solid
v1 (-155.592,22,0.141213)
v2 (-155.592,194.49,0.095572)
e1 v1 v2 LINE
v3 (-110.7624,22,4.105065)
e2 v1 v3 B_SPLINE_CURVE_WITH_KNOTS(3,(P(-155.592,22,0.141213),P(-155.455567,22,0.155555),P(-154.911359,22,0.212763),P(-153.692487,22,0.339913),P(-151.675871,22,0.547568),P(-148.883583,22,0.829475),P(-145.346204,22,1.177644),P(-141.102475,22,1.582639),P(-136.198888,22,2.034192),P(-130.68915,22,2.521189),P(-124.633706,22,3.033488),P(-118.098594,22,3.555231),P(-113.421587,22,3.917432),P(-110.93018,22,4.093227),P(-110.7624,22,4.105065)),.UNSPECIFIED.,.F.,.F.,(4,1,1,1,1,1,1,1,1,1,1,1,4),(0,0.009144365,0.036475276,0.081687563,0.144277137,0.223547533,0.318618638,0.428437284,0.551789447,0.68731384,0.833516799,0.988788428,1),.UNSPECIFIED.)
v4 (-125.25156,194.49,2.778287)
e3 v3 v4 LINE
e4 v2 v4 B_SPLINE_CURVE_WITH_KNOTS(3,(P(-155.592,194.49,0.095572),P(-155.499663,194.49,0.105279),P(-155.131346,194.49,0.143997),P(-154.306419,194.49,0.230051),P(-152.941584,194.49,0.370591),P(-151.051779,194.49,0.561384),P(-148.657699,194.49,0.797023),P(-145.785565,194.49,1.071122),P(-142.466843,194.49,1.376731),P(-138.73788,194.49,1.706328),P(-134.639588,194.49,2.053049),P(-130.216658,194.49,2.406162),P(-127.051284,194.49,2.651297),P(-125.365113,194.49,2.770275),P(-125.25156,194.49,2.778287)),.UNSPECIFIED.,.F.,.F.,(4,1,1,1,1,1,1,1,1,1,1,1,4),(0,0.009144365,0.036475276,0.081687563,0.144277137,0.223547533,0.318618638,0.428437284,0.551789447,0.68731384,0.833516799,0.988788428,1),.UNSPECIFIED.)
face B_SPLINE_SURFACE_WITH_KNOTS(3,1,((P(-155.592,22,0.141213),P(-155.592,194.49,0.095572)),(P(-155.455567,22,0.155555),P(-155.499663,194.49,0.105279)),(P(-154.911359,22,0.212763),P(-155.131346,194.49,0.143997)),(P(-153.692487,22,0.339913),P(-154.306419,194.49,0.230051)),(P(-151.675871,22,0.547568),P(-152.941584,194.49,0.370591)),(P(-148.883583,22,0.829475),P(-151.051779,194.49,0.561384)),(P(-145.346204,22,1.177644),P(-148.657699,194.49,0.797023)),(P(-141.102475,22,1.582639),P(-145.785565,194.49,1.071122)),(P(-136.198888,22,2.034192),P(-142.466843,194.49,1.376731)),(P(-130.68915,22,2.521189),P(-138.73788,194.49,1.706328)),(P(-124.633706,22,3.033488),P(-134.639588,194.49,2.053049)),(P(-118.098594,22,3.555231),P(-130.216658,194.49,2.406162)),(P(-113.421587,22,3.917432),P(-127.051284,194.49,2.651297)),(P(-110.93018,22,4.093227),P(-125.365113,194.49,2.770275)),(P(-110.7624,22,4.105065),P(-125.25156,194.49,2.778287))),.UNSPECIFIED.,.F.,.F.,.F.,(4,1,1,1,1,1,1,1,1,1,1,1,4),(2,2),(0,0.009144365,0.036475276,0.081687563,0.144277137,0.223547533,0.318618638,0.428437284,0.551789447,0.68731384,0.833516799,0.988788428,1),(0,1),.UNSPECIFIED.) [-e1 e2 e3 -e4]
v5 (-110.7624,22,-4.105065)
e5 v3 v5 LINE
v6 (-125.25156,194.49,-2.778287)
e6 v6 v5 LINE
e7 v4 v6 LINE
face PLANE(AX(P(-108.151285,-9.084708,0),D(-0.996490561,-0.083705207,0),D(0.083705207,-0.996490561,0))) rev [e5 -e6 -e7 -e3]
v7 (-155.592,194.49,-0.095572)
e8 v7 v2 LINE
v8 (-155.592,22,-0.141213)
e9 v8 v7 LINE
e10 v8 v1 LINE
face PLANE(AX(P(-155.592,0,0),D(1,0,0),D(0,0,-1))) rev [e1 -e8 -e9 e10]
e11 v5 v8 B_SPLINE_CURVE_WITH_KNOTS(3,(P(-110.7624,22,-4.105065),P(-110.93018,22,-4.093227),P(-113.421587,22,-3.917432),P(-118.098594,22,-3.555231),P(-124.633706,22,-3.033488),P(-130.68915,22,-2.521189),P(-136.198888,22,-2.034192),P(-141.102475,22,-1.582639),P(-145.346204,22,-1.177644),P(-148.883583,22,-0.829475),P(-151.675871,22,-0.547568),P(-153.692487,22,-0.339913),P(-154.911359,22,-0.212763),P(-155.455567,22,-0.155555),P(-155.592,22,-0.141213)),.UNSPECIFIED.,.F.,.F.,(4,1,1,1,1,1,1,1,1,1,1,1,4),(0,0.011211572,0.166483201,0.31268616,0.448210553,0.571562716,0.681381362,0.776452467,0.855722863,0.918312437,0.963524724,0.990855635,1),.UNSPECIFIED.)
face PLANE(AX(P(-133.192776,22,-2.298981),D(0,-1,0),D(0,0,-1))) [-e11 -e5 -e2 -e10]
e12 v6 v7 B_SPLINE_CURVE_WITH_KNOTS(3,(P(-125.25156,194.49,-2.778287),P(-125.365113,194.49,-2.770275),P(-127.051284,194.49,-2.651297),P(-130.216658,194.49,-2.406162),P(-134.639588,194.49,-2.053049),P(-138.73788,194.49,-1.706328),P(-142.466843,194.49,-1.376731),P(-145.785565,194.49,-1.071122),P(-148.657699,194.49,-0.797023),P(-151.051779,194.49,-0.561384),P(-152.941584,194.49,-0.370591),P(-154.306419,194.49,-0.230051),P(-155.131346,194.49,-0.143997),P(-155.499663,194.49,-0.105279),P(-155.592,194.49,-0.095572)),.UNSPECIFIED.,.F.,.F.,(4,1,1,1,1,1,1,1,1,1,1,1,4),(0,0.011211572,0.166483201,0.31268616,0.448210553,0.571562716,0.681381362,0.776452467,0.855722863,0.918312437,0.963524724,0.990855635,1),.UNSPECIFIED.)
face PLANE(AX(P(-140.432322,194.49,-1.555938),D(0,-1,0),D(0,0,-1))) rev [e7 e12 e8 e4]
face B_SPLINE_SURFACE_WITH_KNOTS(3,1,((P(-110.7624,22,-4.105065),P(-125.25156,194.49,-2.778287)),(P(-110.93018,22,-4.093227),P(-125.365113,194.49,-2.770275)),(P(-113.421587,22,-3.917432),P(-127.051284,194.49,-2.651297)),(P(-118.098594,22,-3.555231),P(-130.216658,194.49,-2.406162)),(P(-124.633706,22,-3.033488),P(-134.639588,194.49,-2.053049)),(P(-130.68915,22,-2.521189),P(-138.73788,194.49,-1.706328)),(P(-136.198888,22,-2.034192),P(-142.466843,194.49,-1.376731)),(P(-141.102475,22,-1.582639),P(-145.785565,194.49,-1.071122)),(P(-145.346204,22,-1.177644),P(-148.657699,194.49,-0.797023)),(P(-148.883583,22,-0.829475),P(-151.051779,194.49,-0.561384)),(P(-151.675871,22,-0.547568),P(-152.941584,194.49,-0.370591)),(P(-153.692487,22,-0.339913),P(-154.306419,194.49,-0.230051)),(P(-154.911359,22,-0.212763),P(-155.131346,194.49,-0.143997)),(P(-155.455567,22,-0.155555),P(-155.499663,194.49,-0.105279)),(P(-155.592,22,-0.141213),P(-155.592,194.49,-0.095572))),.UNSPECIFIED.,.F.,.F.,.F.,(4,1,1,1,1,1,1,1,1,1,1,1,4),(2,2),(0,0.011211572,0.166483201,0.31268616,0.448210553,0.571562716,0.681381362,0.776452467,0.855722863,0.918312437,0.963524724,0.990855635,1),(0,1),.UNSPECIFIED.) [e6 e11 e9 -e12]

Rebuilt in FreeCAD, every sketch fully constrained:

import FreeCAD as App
import Part
import Sketcher

V = App.Vector

doc = App.newDocument("Part")
body = doc.addObject("PartDesign::Body", "Body")

sketch1 = doc.addObject("Sketcher::SketchObject", "Sketch")
body.addObject(sketch1)
sketch1.AttachmentSupport = (doc.XZ_Plane, [""])
sketch1.MapMode = "FlatFace"
sketch1.AttachmentOffset = App.Placement(V(0, 0, -22), App.Rotation())
sketch1.addGeometry(Part.LineSegment(V(-110.7624, 4.105065, 0), V(-110.7624, -4.105065, 0)), False)
sketch1.addGeometry(Part.BSplineCurve([V(-110.7624, -4.105065, 0), V(-110.93018, -4.093227, 0), V(-113.421587, -3.917432, 0), V(-118.098594, -3.555231, 0), V(-124.633706, -3.033488, 0), V(-130.68915, -2.521189, 0), V(-136.198888, -2.034192, 0), V(-141.102475, -1.582639, 0), V(-145.346204, -1.177644, 0), V(-148.883583, -0.829475, 0), V(-151.675871, -0.547568, 0), V(-153.692487, -0.339913, 0), V(-154.911359, -0.212763, 0), V(-155.455567, -0.155555, 0), V(-155.592, -0.141213, 0)], [4, 1, 1, 1, 1, 1, 1, 1, 1, 1, 1, 1, 4], [0, 0.011211572, 0.166483201, 0.31268616, 0.448210553, 0.571562716, 0.681381362, 0.776452467, 0.855722863, 0.918312437, 0.963524724, 0.990855635, 1], False, 3, [1, 1, 1, 1, 1, 1, 1, 1, 1, 1, 1, 1, 1, 1, 1], False), False)
sketch1.addGeometry(Part.LineSegment(V(-155.592, -0.141213, 0), V(-155.592, 0.141213, 0)), False)
sketch1.addGeometry(Part.BSplineCurve([V(-110.7624, 4.105065, 0), V(-110.93018, 4.093227, 0), V(-113.421587, 3.917432, 0), V(-118.098594, 3.555231, 0), V(-124.633706, 3.033488, 0), V(-130.68915, 2.521189, 0), V(-136.198888, 2.034192, 0), V(-141.102475, 1.582639, 0), V(-145.346204, 1.177644, 0), V(-148.883583, 0.829475, 0), V(-151.675871, 0.547568, 0), V(-153.692487, 0.339913, 0), V(-154.911359, 0.212763, 0), V(-155.455567, 0.155555, 0), V(-155.592, 0.141213, 0)], [4, 1, 1, 1, 1, 1, 1, 1, 1, 1, 1, 1, 4], [0, 0.011211572, 0.166483201, 0.31268616, 0.448210553, 0.571562716, 0.681381362, 0.776452467, 0.855722863, 0.918312437, 0.963524724, 0.990855635, 1], False, 3, [1, 1, 1, 1, 1, 1, 1, 1, 1, 1, 1, 1, 1, 1, 1], False), False)
sketch1.addConstraint(Sketcher.Constraint("Block", 1))
sketch1.addConstraint(Sketcher.Constraint("Block", 3))
sketch1.addConstraint(Sketcher.Constraint("Coincident", 0, 2, 1, 1))
sketch1.addConstraint(Sketcher.Constraint("Coincident", 1, 2, 2, 1))
sketch1.addConstraint(Sketcher.Constraint("Coincident", 2, 2, 3, 2))
sketch1.addConstraint(Sketcher.Constraint("Coincident", 3, 1, 0, 1))

sketch2 = doc.addObject("Sketcher::SketchObject", "Sketch001")
body.addObject(sketch2)
sketch2.AttachmentSupport = (doc.XZ_Plane, [""])
sketch2.MapMode = "FlatFace"
sketch2.AttachmentOffset = App.Placement(V(0, 0, -194.49), App.Rotation())
sketch2.addGeometry(Part.LineSegment(V(-125.25156, 2.778287, 0), V(-125.25156, -2.778287, 0)), False)
sketch2.addGeometry(Part.BSplineCurve([V(-125.25156, -2.778287, 0), V(-125.365113, -2.770275, 0), V(-127.051284, -2.651297, 0), V(-130.216658, -2.406162, 0), V(-134.639588, -2.053049, 0), V(-138.73788, -1.706328, 0), V(-142.466843, -1.376731, 0), V(-145.785565, -1.071122, 0), V(-148.657699, -0.797023, 0), V(-151.051779, -0.561384, 0), V(-152.941584, -0.370591, 0), V(-154.306419, -0.230051, 0), V(-155.131346, -0.143997, 0), V(-155.499663, -0.105279, 0), V(-155.592, -0.095572, 0)], [4, 1, 1, 1, 1, 1, 1, 1, 1, 1, 1, 1, 4], [0, 0.011211572, 0.166483201, 0.31268616, 0.448210553, 0.571562716, 0.681381362, 0.776452467, 0.855722863, 0.918312437, 0.963524724, 0.990855635, 1], False, 3, [1, 1, 1, 1, 1, 1, 1, 1, 1, 1, 1, 1, 1, 1, 1], False), False)
sketch2.addGeometry(Part.LineSegment(V(-155.592, -0.095572, 0), V(-155.592, 0.095572, 0)), False)
sketch2.addGeometry(Part.BSplineCurve([V(-125.25156, 2.778287, 0), V(-125.365113, 2.770275, 0), V(-127.051284, 2.651297, 0), V(-130.216658, 2.406162, 0), V(-134.639588, 2.053049, 0), V(-138.73788, 1.706328, 0), V(-142.466843, 1.376731, 0), V(-145.785565, 1.071122, 0), V(-148.657699, 0.797023, 0), V(-151.051779, 0.561384, 0), V(-152.941584, 0.370591, 0), V(-154.306419, 0.230051, 0), V(-155.131346, 0.143997, 0), V(-155.499663, 0.105279, 0), V(-155.592, 0.095572, 0)], [4, 1, 1, 1, 1, 1, 1, 1, 1, 1, 1, 1, 4], [0, 0.011211572, 0.166483201, 0.31268616, 0.448210553, 0.571562716, 0.681381362, 0.776452467, 0.855722863, 0.918312437, 0.963524724, 0.990855635, 1], False, 3, [1, 1, 1, 1, 1, 1, 1, 1, 1, 1, 1, 1, 1, 1, 1], False), False)
sketch2.addConstraint(Sketcher.Constraint("Block", 1))
sketch2.addConstraint(Sketcher.Constraint("Block", 3))
sketch2.addConstraint(Sketcher.Constraint("Coincident", 0, 2, 1, 1))
sketch2.addConstraint(Sketcher.Constraint("Coincident", 1, 2, 2, 1))
sketch2.addConstraint(Sketcher.Constraint("Coincident", 2, 2, 3, 2))
sketch2.addConstraint(Sketcher.Constraint("Coincident", 3, 1, 0, 1))

additiveloft = doc.addObject("PartDesign::AdditiveLoft", "AdditiveLoft")
body.addObject(additiveloft)
additiveloft.Profile = sketch1
additiveloft.Sections = [sketch2]

doc.recompute()
